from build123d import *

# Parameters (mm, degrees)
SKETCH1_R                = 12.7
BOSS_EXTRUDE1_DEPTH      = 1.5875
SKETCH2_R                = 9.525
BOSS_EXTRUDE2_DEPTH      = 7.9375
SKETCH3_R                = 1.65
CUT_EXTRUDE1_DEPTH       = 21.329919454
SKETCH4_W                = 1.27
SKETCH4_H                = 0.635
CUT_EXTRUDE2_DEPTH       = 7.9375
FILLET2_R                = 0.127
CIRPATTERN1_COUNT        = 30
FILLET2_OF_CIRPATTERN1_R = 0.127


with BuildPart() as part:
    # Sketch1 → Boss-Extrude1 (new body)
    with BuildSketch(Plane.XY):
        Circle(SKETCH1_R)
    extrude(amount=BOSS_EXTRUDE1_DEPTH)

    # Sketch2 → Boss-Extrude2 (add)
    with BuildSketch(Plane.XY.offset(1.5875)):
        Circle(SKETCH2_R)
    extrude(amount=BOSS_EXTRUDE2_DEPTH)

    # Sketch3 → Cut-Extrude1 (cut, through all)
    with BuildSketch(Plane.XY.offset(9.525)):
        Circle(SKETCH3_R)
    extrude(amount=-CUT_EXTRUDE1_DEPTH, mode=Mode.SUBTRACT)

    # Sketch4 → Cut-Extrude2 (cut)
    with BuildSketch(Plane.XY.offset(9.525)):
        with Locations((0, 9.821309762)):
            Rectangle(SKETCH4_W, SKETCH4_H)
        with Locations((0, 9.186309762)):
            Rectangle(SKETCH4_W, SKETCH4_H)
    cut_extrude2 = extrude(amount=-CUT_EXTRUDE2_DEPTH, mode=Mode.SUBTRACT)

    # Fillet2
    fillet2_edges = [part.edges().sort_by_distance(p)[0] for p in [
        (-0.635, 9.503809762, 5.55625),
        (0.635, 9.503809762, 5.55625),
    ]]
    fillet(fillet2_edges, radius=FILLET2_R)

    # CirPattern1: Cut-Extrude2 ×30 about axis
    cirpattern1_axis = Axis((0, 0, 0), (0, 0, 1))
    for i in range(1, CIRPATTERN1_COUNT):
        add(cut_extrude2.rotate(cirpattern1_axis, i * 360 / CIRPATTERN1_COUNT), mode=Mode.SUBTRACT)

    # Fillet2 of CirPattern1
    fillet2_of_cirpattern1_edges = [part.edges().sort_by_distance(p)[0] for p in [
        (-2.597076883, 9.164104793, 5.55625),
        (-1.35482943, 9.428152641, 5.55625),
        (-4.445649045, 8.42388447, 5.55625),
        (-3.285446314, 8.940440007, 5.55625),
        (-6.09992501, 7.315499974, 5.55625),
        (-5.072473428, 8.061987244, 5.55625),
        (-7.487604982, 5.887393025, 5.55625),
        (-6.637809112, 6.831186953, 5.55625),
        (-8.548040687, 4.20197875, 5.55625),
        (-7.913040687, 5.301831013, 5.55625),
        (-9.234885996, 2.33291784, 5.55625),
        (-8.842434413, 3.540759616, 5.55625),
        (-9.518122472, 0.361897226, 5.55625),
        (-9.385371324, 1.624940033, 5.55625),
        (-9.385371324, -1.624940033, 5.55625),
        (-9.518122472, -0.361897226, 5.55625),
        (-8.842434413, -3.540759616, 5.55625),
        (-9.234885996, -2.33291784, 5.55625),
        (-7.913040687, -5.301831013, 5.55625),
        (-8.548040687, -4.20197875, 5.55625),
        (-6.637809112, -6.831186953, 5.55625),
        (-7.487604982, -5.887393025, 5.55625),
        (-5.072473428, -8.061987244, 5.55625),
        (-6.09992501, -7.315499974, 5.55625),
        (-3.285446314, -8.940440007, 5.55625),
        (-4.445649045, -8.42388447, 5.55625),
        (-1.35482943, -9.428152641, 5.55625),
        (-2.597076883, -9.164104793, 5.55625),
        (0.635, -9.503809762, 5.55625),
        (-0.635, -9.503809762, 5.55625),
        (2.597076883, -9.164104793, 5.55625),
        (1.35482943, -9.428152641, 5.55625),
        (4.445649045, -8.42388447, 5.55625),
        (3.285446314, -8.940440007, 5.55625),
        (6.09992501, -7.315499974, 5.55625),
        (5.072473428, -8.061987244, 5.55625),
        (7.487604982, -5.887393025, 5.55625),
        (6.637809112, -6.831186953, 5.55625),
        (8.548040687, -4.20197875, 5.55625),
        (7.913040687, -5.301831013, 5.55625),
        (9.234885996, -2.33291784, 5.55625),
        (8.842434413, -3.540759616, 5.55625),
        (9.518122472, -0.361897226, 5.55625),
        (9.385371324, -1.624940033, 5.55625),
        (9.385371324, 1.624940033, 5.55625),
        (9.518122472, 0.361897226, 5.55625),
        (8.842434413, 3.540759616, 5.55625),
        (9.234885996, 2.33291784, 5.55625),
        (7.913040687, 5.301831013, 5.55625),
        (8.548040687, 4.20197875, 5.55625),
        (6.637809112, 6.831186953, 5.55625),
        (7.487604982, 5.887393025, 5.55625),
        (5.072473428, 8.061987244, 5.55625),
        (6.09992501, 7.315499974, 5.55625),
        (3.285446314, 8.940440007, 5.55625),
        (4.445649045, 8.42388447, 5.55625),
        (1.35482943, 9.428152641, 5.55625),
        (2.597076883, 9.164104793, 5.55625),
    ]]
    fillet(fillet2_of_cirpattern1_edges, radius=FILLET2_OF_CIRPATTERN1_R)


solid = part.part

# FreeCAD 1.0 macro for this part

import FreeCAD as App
import Part
import Sketcher

V = App.Vector
Q = App.Units.Quantity


def edges_at(feature, points):
    """Names of the edges that pass closest to the given points."""
    edges = feature.Shape.Edges
    near = lambda p: min(range(len(edges)), key=lambda i: edges[i].distToShape(Part.Vertex(*p))[0])
    return sorted({f"Edge{near(p) + 1}" for p in points})


def add_polygon(sketch, points):
    """Adds a closed chain of lines whose ends are joined by coincident constraints."""
    first, n = sketch.GeometryCount, len(points)
    for a, b in zip(points, points[1:] + points[:1]):
        sketch.addGeometry(Part.LineSegment(App.Vector(*a, 0), App.Vector(*b, 0)), False)
    for i in range(n):
        sketch.addConstraint(Sketcher.Constraint("Coincident", first + i, 2, first + (i + 1) % n, 1))

doc = App.newDocument("Part")
body = doc.addObject("PartDesign::Body", "Body")

# Sketch on XY plane
sketch1 = body.newObject("Sketcher::SketchObject", "Sketch")
sketch1.AttachmentSupport = (doc.getObject("XY_Plane"), [""])
sketch1.MapMode = "FlatFace"
sketch1.addGeometry(Part.Circle(V(0, 0, 0), V(0, 0, 1), 13), False)
sketch1.addConstraint(Sketcher.Constraint("Coincident", 0, 3, -1, 1))
sketch1.addConstraint(Sketcher.Constraint("Diameter", 0, Q("1 in")))
pad1 = body.newObject("PartDesign::Pad", "Pad")
pad1.Profile = sketch1
pad1.Length = Q("0.0625 in")

# Sketch on XY plane
sketch2 = body.newObject("Sketcher::SketchObject", "Sketch001")
sketch2.AttachmentSupport = (doc.getObject("XY_Plane"), [""])
sketch2.MapMode = "FlatFace"
sketch2.AttachmentOffset = App.Placement(V(0, 0, 0.0625 * 25.4), App.Rotation())
sketch2.addGeometry(Part.Circle(V(0, 0, 0), V(0, 0, 1), 10), False)
sketch2.addConstraint(Sketcher.Constraint("Coincident", 0, 3, -1, 1))
sketch2.addConstraint(Sketcher.Constraint("Diameter", 0, Q("0.75 in")))
pad2 = body.newObject("PartDesign::Pad", "Pad001")
pad2.Profile = sketch2
pad2.Length = Q("0.3125 in")

# Sketch on XY plane
sketch3 = body.newObject("Sketcher::SketchObject", "Sketch002")
sketch3.AttachmentSupport = (doc.getObject("XY_Plane"), [""])
sketch3.MapMode = "FlatFace"
sketch3.AttachmentOffset = App.Placement(V(0, 0, 0.375 * 25.4), App.Rotation())
sketch3.addGeometry(Part.Circle(V(0, 0, 0), V(0, 0, 1), 1.6), False)
sketch3.addConstraint(Sketcher.Constraint("Coincident", 0, 3, -1, 1))
sketch3.addConstraint(Sketcher.Constraint("Diameter", 0, 3.3))
pocket1 = body.newObject("PartDesign::Pocket", "Pocket")
pocket1.Profile = sketch3
pocket1.Type = "ThroughAll"

# Sketch on XY plane
sketch4 = body.newObject("Sketcher::SketchObject", "Sketch003")
sketch4.AttachmentSupport = (doc.getObject("XY_Plane"), [""])
sketch4.MapMode = "FlatFace"
sketch4.AttachmentOffset = App.Placement(V(0, 0, 0.375 * 25.4), App.Rotation())
add_polygon(sketch4, [(-0.6, 10.1), (-0.6, 8.9), (0.6, 8.9), (0.6, 10.1)])  # lines 0-3
sketch4.addConstraint(Sketcher.Constraint("Vertical", 0))
sketch4.addConstraint(Sketcher.Constraint("Horizontal", 1))
sketch4.addConstraint(Sketcher.Constraint("Vertical", 2))
sketch4.addConstraint(Sketcher.Constraint("Horizontal", 3))
sketch4.addConstraint(Sketcher.Constraint("Equal", 3, 0))
sketch4.addConstraint(Sketcher.Constraint("DistanceX", 1, 1, 1, 2, Q("0.05 in")))
sketch4.addConstraint(Sketcher.Constraint("DistanceX", 0, 2, -1, 1, Q("0.025 in")))
sketch4.addConstraint(Sketcher.Constraint("DistanceY", -1, 1, 0, 2, 8.86881))
pocket2 = body.newObject("PartDesign::Pocket", "Pocket001")
pocket2.Profile = sketch4
pocket2.Length = Q("0.3125 in")
doc.recompute()

fillet = body.newObject("PartDesign::Fillet", "Fillet")
fillet.Base = (pocket2, edges_at(pocket2, [(-0.635, 9.504, 5.556), (0.635, 9.504, 5.556)]))
fillet.Radius = Q("0.005 in")
doc.recompute()

polarpattern = body.newObject("PartDesign::PolarPattern", "PolarPattern")
polarpattern.Originals = [pocket2]
polarpattern.Axis = (doc.getObject("Z_Axis"), [""])
polarpattern.Angle = 360
polarpattern.Occurrences = 30
body.Tip = polarpattern
doc.recompute()

fillet2 = body.newObject("PartDesign::Fillet", "Fillet001")
fillet2.Base = (polarpattern, edges_at(polarpattern, [
    (-2.597, 9.164, 5.556),
    (-1.355, 9.428, 5.556),
    (-4.446, 8.424, 5.556),
    (-3.285, 8.94, 5.556),
    (-6.1, 7.315, 5.556),
    (-5.072, 8.062, 5.556),
    (-7.488, 5.887, 5.556),
    (-6.638, 6.831, 5.556),
    (-8.548, 4.202, 5.556),
    (-7.913, 5.302, 5.556),
    (-9.235, 2.333, 5.556),
    (-8.842, 3.541, 5.556),
    (-9.518, 0.362, 5.556),
    (-9.385, 1.625, 5.556),
    (-9.385, -1.625, 5.556),
    (-9.518, -0.362, 5.556),
    (-8.842, -3.541, 5.556),
    (-9.235, -2.333, 5.556),
    (-7.913, -5.302, 5.556),
    (-8.548, -4.202, 5.556),
    (-6.638, -6.831, 5.556),
    (-7.488, -5.887, 5.556),
    (-5.072, -8.062, 5.556),
    (-6.1, -7.315, 5.556),
    (-3.285, -8.94, 5.556),
    (-4.446, -8.424, 5.556),
    (-1.355, -9.428, 5.556),
    (-2.597, -9.164, 5.556),
    (0.635, -9.504, 5.556),
    (-0.635, -9.504, 5.556),
    (2.597, -9.164, 5.556),
    (1.355, -9.428, 5.556),
    (4.446, -8.424, 5.556),
    (3.285, -8.94, 5.556),
    (6.1, -7.315, 5.556),
    (5.072, -8.062, 5.556),
    (7.488, -5.887, 5.556),
    (6.638, -6.831, 5.556),
    (8.548, -4.202, 5.556),
    (7.913, -5.302, 5.556),
    (9.235, -2.333, 5.556),
    (8.842, -3.541, 5.556),
    (9.518, -0.362, 5.556),
    (9.385, -1.625, 5.556),
    (9.385, 1.625, 5.556),
    (9.518, 0.362, 5.556),
    (8.842, 3.541, 5.556),
    (9.235, 2.333, 5.556),
    (7.913, 5.302, 5.556),
    (8.548, 4.202, 5.556),
    (6.638, 6.831, 5.556),
    (7.488, 5.887, 5.556),
    (5.072, 8.062, 5.556),
    (6.1, 7.315, 5.556),
    (3.285, 8.94, 5.556),
    (4.446, 8.424, 5.556),
    (1.355, 9.428, 5.556),
    (2.597, 9.164, 5.556),
]))
fillet2.Radius = Q("0.005 in")

doc.recompute()
